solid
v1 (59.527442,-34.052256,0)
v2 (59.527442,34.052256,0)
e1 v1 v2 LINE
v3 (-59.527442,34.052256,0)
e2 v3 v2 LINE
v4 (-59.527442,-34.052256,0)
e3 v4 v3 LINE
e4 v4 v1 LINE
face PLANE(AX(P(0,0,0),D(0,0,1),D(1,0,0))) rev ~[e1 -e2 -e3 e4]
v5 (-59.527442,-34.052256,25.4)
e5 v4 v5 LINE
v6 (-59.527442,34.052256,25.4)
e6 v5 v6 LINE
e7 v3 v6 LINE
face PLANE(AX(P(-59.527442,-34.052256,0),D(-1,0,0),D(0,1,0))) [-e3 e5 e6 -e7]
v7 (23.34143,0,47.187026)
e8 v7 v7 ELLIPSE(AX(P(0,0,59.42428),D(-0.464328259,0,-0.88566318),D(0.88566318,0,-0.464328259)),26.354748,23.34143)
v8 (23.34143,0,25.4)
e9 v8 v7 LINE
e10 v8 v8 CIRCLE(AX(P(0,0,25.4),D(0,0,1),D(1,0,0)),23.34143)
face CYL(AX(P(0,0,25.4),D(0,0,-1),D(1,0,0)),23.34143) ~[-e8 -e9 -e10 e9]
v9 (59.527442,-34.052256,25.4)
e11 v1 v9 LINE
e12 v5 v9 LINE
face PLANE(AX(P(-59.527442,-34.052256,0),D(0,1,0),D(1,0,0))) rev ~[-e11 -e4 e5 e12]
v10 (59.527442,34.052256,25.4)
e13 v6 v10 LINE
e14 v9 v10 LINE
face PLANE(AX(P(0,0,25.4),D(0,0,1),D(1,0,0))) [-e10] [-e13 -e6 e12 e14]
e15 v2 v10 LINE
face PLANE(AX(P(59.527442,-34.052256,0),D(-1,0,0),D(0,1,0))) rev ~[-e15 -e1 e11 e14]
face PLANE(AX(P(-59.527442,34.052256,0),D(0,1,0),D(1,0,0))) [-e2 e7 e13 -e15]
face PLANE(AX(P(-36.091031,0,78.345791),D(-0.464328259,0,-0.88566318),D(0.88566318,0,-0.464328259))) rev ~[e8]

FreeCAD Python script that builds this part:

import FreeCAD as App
import Part
import Sketcher

V = App.Vector
Q = App.Units.Quantity


def add_polygon(sketch, points):
    """Adds a closed chain of lines whose ends are joined by coincident constraints."""
    first, n = sketch.GeometryCount, len(points)
    for a, b in zip(points, points[1:] + points[:1]):
        sketch.addGeometry(Part.LineSegment(App.Vector(*a, 0), App.Vector(*b, 0)), False)
    for i in range(n):
        sketch.addConstraint(Sketcher.Constraint("Coincident", first + i, 2, first + (i + 1) % n, 1))

doc = App.newDocument("Part")
body = doc.addObject("PartDesign::Body", "Body")

# Sketch on XY plane
sketch1 = doc.addObject("Sketcher::SketchObject", "Sketch")
body.addObject(sketch1)
sketch1.AttachmentSupport = (doc.XY_Plane, [""])
sketch1.MapMode = "FlatFace"
add_polygon(sketch1, [(-60, 34), (-60, -34), (60, -34), (60, 34)])  # lines 0-3
sketch1.addConstraint(Sketcher.Constraint("Vertical", 0))
sketch1.addConstraint(Sketcher.Constraint("Horizontal", 1))
sketch1.addConstraint(Sketcher.Constraint("Vertical", 2))
sketch1.addConstraint(Sketcher.Constraint("Horizontal", 3))
sketch1.addConstraint(Sketcher.Constraint("Symmetric", 0, 2, 2, 2, -1, 1))
sketch1.addConstraint(Sketcher.Constraint("DistanceX", 1, 1, 1, 2, Q("4.6872002 in")))
sketch1.addConstraint(Sketcher.Constraint("DistanceY", 0, 2, 0, 1, 68.104512))
pad1 = doc.addObject("PartDesign::Pad", "Pad")
body.addObject(pad1)
pad1.Profile = sketch1
pad1.Length = Q("1 in")

# Sketch on XY plane
sketch2 = doc.addObject("Sketcher::SketchObject", "Sketch001")
body.addObject(sketch2)
sketch2.AttachmentSupport = (doc.XY_Plane, [""])
sketch2.MapMode = "FlatFace"
sketch2.AttachmentOffset = App.Placement(V(0, 0, 1 * 25.4), App.Rotation())
sketch2.addGeometry(Part.Circle(V(0, 0, 0), V(0, 0, 1), 23), False)
sketch2.addConstraint(Sketcher.Constraint("Coincident", 0, 3, -1, 1))
sketch2.addConstraint(Sketcher.Constraint("Diameter", 0, 46.68286))
pad2 = doc.addObject("PartDesign::Pad", "Pad001")
body.addObject(pad2)
pad2.Profile = sketch2
pad2.Length = Q("1.86 in")

# Sketch on XZ plane
sketch3 = doc.addObject("Sketcher::SketchObject", "Sketch002")
body.addObject(sketch3)
sketch3.AttachmentSupport = (doc.XZ_Plane, [""])
sketch3.MapMode = "FlatFace"
add_polygon(sketch3, [(41, 78), (-36, 78), (41, 38)])  # lines 0-2
sketch3.addConstraint(Sketcher.Constraint("Horizontal", 0))
sketch3.addConstraint(Sketcher.Constraint("Vertical", 2))
sketch3.addConstraint(Sketcher.Constraint("DistanceX", 0, 2, 0, 1, 76.672101))
sketch3.addConstraint(Sketcher.Constraint("Distance", 1, 86.57027))
sketch3.addConstraint(Sketcher.Constraint("DistanceX", 0, 2, -1, 1, 36.091031))
sketch3.addConstraint(Sketcher.Constraint("DistanceY", -1, 1, 0, 2, 78.345791))
pocket1 = doc.addObject("PartDesign::Pocket", "Pocket")
body.addObject(pocket1)
pocket1.Profile = sketch3
pocket1.Length = Q("2.56 in")
pocket1.Midplane = True

doc.recompute()
